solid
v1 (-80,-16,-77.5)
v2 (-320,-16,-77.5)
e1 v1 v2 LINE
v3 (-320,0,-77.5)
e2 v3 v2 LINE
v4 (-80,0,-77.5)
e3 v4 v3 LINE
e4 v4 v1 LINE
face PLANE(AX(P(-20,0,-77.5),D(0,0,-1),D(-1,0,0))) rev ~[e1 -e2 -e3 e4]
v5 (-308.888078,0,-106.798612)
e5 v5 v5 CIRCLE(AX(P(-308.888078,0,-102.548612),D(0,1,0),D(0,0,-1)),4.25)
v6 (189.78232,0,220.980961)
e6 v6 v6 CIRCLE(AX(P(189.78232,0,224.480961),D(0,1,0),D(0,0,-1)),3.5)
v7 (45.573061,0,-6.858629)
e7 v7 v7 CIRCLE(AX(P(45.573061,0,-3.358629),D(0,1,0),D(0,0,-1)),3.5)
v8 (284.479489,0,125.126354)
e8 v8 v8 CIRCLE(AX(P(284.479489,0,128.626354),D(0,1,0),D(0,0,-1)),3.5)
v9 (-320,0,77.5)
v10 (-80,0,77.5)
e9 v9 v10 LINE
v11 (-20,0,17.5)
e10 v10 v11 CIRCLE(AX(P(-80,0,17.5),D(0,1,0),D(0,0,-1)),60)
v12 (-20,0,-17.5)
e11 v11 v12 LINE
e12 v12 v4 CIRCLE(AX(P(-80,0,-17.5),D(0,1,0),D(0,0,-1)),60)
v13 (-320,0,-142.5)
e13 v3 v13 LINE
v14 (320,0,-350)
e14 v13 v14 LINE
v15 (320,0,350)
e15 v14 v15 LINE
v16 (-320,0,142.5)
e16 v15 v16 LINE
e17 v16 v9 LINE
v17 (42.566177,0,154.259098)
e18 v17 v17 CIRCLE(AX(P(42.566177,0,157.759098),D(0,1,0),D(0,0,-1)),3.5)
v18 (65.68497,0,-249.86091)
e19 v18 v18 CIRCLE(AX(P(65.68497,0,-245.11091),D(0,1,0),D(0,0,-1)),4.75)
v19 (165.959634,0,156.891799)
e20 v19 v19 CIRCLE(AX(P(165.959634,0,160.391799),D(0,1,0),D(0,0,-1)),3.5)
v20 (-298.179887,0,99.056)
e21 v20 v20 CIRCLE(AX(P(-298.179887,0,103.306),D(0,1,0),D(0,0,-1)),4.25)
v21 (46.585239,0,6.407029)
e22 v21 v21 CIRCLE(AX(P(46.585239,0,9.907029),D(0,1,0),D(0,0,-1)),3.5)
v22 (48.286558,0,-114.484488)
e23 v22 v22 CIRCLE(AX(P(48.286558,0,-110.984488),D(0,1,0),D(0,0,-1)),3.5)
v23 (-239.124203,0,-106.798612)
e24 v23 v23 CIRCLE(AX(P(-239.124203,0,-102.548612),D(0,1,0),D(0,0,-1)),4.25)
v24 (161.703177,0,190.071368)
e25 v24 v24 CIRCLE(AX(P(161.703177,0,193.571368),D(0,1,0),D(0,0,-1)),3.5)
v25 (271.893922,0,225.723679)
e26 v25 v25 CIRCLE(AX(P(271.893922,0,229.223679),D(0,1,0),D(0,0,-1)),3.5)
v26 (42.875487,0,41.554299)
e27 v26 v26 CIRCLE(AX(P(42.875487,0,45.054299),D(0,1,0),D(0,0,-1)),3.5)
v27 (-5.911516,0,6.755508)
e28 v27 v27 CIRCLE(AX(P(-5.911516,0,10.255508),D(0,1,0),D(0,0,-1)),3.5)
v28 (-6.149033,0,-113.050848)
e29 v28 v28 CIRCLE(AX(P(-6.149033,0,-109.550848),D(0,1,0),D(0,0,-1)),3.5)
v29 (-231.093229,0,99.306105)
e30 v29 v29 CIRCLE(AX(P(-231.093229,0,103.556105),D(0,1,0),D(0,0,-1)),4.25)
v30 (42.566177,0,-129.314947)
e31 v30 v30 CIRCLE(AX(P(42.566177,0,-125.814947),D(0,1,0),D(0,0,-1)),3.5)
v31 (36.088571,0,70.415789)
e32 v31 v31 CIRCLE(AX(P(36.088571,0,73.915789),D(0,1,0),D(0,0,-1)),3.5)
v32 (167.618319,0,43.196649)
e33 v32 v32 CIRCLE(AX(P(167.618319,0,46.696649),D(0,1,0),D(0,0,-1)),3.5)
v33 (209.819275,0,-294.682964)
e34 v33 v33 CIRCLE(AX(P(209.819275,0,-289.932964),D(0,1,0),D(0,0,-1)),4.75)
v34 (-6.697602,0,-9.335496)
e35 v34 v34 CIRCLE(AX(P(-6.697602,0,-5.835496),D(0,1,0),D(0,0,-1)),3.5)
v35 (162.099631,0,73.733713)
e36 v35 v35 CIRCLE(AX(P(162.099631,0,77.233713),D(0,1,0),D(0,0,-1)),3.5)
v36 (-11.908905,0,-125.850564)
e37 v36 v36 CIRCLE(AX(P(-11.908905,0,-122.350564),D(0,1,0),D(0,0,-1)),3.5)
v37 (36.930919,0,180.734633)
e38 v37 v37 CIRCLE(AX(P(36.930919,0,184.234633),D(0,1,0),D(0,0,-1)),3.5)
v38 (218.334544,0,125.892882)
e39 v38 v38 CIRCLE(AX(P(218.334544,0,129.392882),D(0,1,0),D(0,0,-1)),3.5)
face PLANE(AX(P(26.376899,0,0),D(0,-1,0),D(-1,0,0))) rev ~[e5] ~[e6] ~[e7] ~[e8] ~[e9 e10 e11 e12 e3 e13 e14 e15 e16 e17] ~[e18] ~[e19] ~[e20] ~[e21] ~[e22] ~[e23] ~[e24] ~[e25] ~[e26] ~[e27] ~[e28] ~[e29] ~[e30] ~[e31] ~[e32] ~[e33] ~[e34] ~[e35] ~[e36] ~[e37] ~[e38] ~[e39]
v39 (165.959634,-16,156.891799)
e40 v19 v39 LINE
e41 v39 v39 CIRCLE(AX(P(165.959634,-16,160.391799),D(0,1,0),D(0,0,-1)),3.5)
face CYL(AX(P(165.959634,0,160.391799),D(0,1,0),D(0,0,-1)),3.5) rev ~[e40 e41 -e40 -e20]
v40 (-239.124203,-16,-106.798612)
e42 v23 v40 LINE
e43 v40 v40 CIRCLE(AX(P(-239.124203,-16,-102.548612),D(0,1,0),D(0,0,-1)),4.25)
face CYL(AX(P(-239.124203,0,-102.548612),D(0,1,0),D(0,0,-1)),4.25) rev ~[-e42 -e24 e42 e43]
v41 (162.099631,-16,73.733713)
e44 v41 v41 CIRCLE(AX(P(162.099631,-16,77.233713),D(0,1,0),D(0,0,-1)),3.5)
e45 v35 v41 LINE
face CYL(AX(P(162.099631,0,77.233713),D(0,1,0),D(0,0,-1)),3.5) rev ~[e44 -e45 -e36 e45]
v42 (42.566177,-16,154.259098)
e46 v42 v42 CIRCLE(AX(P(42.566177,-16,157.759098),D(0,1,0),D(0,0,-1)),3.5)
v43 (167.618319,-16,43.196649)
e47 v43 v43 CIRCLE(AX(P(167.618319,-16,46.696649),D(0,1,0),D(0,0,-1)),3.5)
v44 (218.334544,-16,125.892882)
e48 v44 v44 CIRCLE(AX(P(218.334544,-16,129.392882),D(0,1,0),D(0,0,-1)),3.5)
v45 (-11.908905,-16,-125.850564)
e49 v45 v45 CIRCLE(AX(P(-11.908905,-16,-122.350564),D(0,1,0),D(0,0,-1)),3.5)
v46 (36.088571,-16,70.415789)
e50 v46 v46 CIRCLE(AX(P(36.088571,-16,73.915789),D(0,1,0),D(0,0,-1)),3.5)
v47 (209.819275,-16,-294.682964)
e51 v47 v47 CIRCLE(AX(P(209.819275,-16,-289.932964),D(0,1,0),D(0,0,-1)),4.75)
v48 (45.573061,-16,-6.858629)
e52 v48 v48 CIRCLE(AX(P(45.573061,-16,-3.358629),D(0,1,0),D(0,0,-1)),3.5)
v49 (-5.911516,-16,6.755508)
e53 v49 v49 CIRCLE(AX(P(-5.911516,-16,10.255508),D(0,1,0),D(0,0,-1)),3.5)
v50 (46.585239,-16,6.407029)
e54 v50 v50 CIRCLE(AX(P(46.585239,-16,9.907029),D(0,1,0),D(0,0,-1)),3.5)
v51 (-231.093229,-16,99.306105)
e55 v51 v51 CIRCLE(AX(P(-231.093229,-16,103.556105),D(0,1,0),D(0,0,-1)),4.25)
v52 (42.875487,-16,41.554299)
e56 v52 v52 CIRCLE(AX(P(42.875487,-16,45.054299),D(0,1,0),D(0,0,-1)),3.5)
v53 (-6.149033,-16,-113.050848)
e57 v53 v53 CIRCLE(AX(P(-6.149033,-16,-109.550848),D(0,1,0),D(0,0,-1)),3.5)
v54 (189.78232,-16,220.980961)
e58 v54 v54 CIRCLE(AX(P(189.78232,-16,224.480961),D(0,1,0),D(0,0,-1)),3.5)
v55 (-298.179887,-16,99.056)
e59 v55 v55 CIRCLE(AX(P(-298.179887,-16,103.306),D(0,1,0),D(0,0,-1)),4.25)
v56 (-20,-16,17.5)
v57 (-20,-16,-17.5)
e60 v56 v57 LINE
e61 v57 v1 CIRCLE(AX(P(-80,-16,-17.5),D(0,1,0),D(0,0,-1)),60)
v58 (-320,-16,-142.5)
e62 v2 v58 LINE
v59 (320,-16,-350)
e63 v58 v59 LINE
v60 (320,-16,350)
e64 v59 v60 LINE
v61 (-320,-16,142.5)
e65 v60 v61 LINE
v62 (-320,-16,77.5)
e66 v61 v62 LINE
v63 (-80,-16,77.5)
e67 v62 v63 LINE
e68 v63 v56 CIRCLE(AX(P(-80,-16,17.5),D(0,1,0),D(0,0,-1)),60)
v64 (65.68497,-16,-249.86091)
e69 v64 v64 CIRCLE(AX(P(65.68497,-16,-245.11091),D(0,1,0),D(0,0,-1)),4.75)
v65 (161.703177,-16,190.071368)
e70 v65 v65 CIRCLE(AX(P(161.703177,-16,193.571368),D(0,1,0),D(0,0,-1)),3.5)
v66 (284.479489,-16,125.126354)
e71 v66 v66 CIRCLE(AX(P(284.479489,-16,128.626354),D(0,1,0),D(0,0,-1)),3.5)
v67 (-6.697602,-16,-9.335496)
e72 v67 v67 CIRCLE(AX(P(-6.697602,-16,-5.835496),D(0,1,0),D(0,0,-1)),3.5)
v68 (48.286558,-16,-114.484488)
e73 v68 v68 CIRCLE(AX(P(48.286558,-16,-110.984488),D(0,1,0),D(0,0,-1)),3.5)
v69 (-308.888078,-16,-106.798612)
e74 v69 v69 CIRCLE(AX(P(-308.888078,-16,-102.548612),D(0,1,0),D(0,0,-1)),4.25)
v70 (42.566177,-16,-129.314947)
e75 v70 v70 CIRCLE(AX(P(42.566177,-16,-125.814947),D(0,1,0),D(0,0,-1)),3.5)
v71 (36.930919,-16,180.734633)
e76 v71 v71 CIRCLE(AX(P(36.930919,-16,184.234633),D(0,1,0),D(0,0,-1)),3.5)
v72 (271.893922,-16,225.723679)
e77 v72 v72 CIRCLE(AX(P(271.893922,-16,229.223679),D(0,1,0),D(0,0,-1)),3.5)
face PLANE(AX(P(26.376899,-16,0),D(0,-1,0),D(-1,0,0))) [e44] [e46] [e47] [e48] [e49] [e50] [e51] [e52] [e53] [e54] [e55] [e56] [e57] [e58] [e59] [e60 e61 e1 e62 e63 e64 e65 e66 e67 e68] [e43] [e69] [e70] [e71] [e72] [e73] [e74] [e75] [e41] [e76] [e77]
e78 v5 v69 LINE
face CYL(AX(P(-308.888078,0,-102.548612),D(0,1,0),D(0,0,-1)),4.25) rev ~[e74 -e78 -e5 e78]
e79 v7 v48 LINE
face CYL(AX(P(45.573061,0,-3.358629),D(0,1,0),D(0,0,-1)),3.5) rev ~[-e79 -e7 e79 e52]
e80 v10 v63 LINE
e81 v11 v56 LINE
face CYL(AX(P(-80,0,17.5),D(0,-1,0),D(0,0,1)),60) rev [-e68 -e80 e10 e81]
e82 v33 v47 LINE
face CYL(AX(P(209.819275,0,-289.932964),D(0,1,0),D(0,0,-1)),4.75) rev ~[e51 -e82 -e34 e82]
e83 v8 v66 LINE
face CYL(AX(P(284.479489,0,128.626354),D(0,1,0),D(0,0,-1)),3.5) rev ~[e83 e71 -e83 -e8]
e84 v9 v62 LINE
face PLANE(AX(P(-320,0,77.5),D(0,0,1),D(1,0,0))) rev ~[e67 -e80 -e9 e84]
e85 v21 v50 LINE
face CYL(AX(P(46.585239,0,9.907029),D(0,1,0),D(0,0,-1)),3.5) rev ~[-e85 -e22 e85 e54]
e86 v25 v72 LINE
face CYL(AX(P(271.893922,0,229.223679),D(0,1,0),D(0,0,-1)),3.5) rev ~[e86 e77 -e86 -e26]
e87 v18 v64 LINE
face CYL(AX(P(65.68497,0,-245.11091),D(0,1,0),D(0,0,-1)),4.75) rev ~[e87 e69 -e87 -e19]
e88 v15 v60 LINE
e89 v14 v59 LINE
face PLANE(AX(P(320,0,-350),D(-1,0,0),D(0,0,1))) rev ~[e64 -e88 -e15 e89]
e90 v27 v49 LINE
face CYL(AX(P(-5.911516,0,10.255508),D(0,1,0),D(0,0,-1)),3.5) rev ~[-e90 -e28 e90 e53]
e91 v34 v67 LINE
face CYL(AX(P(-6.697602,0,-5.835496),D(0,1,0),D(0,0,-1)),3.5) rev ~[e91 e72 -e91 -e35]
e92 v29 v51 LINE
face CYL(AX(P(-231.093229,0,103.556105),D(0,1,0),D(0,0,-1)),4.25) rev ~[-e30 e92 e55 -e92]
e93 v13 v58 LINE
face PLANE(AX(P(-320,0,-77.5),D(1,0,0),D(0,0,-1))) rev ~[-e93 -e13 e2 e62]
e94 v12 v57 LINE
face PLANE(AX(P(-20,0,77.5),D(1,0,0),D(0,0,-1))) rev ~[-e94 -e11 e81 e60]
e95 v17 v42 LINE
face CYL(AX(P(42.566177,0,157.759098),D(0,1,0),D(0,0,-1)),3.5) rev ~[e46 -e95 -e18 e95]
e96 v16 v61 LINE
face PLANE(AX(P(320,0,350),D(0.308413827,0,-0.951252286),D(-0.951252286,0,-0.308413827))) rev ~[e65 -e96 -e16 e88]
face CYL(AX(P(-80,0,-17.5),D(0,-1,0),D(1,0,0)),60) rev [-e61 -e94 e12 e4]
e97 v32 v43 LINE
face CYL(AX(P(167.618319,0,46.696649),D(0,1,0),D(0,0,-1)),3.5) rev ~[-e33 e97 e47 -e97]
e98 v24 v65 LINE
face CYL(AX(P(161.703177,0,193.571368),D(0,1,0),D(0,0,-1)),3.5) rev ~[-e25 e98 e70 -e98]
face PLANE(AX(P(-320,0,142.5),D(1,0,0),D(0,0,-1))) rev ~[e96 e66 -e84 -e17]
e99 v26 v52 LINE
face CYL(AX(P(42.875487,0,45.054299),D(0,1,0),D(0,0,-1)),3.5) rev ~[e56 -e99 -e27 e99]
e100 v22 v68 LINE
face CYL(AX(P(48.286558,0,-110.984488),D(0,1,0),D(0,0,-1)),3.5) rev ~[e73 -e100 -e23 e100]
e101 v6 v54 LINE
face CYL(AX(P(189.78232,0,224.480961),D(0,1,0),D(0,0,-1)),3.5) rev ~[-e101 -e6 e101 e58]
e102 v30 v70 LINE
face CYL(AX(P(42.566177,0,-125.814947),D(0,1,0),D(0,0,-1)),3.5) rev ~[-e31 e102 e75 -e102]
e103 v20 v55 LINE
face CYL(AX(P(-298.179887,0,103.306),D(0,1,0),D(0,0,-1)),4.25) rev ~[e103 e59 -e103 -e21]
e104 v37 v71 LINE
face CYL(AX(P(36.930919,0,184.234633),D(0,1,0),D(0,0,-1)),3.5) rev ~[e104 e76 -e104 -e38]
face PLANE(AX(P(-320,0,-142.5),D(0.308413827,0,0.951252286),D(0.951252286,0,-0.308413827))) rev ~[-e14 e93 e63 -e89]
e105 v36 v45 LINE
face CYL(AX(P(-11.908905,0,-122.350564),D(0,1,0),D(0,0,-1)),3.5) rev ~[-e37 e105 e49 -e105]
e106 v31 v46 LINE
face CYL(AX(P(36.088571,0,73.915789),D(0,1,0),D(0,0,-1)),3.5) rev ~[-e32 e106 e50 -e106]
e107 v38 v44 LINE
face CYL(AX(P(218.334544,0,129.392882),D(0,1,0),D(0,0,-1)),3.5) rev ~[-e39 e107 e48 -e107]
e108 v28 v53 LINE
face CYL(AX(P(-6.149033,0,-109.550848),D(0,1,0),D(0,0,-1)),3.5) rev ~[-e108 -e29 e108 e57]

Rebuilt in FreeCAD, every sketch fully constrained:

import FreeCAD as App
import Part
import Sketcher

V = App.Vector


def edges_at(feature, points):
    """Names of the edges that pass closest to the given points."""
    edges = feature.Shape.Edges
    near = lambda p: min(range(len(edges)), key=lambda i: edges[i].distToShape(Part.Vertex(*p))[0])
    return sorted({f"Edge{near(p) + 1}" for p in points})

doc = App.newDocument("Part")
body = doc.addObject("PartDesign::Body", "Body")

# Sketch on XZ plane
sketch1 = body.newObject("Sketcher::SketchObject", "Sketch")
sketch1.AttachmentSupport = (doc.getObject("XZ_Plane"), [""])
sketch1.MapMode = "FlatFace"
sketch1.addGeometry([
    Part.LineSegment(V(320, -350, 0), V(-320, -142, 0)),  # 0
    Part.LineSegment(V(-320, -142, 0), V(-320, -78, 0)),  # 1
    Part.LineSegment(V(-320, -78, 0), V(-20, -78, 0)),  # 2
    Part.LineSegment(V(-20, -78, 0), V(-20, 78, 0)),  # 3
    Part.LineSegment(V(-20, 78, 0), V(-320, 78, 0)),  # 4
    Part.LineSegment(V(-320, 78, 0), V(-320, 142, 0)),  # 5
    Part.LineSegment(V(-320, 142, 0), V(320, 350, 0)),  # 6
    Part.LineSegment(V(320, 350, 0), V(320, -350, 0)),  # 7
], False)
sketch1.addConstraint([
    Sketcher.Constraint("Coincident", 0, 2, 1, 1),
    Sketcher.Constraint("Coincident", 1, 2, 2, 1),
    Sketcher.Constraint("Coincident", 2, 2, 3, 1),
    Sketcher.Constraint("Coincident", 3, 2, 4, 1),
    Sketcher.Constraint("Coincident", 4, 2, 5, 1),
    Sketcher.Constraint("Coincident", 5, 2, 6, 1),
    Sketcher.Constraint("Coincident", 6, 2, 7, 1),
    Sketcher.Constraint("Coincident", 7, 2, 0, 1),
    Sketcher.Constraint("Vertical", 1),
    Sketcher.Constraint("Horizontal", 2),
    Sketcher.Constraint("Vertical", 3),
    Sketcher.Constraint("Horizontal", 4),
    Sketcher.Constraint("Vertical", 5),
    Sketcher.Constraint("Vertical", 7),
    Sketcher.Constraint("Symmetric", 1, 2, 4, 2, -1),
    Sketcher.Constraint("Equal", 1, 5),
    Sketcher.Constraint("Equal", 0, 6),
    Sketcher.Constraint("DistanceX", 2, 1, 2, 2, 300.0),
    Sketcher.Constraint("DistanceY", 1, 1, 1, 2, 65.0),
    Sketcher.Constraint("DistanceY", 3, 1, 3, 2, 155.0),
    Sketcher.Constraint("DistanceY", 7, 2, 7, 1, 700.0),
    Sketcher.Constraint("DistanceX", 0, 2, -1, 1, 320.0),
    Sketcher.Constraint("DistanceX", -1, 1, 6, 2, 320.0),
])
pad1 = body.newObject("PartDesign::Pad", "Pad")
pad1.Profile = sketch1
pad1.Length = 16
doc.recompute()

fillet = body.newObject("PartDesign::Fillet", "Fillet")
fillet.Base = (pad1, edges_at(pad1, [(-20, -8, 77.5), (-20, -8, -77.5)]))
fillet.Radius = 60

# Sketch on XZ plane
sketch2 = body.newObject("Sketcher::SketchObject", "Sketch001")
sketch2.AttachmentSupport = (doc.getObject("XZ_Plane"), [""])
sketch2.MapMode = "FlatFace"
sketch2.addGeometry([
    Part.Circle(V(45.6, -3.4, 0), V(0, 0, 1), 3.5),  # 0
    Part.Circle(V(-231.1, 103.6, 0), V(0, 0, 1), 4.2),  # 1
    Part.Circle(V(-298.2, 103.3, 0), V(0, 0, 1), 4.2),  # 2
    Part.Circle(V(42.6, 157.8, 0), V(0, 0, 1), 3.5),  # 3
    Part.Circle(V(36.9, 184.2, 0), V(0, 0, 1), 3.5),  # 4
    Part.Circle(V(271.9, 229.2, 0), V(0, 0, 1), 3.5),  # 5
    Part.Circle(V(189.8, 224.5, 0), V(0, 0, 1), 3.5),  # 6
    Part.Circle(V(161.7, 193.6, 0), V(0, 0, 1), 3.5),  # 7
    Part.Circle(V(166, 160.4, 0), V(0, 0, 1), 3.5),  # 8
    Part.Circle(V(218.3, 129.4, 0), V(0, 0, 1), 3.5),  # 9
    Part.Circle(V(284.5, 128.6, 0), V(0, 0, 1), 3.5),  # 10
    Part.Circle(V(167.6, 46.7, 0), V(0, 0, 1), 3.5),  # 11
    Part.Circle(V(162.1, 77.2, 0), V(0, 0, 1), 3.5),  # 12
    Part.Circle(V(36.1, 73.9, 0), V(0, 0, 1), 3.5),  # 13
    Part.Circle(V(42.9, 45.1, 0), V(0, 0, 1), 3.5),  # 14
    Part.Circle(V(46.6, 9.9, 0), V(0, 0, 1), 3.5),  # 15
    Part.Circle(V(-5.9, 10.3, 0), V(0, 0, 1), 3.5),  # 16
    Part.Circle(V(65.7, -245.1, 0), V(0, 0, 1), 4.8),  # 17
    Part.Circle(V(209.8, -289.9, 0), V(0, 0, 1), 4.8),  # 18
    Part.Circle(V(-239.1, -102.5, 0), V(0, 0, 1), 4.2),  # 19
    Part.Circle(V(-308.9, -102.5, 0), V(0, 0, 1), 4.2),  # 20
    Part.Circle(V(42.6, -125.8, 0), V(0, 0, 1), 3.5),  # 21
    Part.Circle(V(-11.9, -122.4, 0), V(0, 0, 1), 3.5),  # 22
    Part.Circle(V(48.3, -111, 0), V(0, 0, 1), 3.5),  # 23
    Part.Circle(V(-6.1, -109.6, 0), V(0, 0, 1), 3.5),  # 24
    Part.Circle(V(-6.7, -5.8, 0), V(0, 0, 1), 3.5),  # 25
], False)
sketch2.addConstraint([
    Sketcher.Constraint("Equal", 1, 2),
    Sketcher.Constraint("Equal", 0, 3),
    Sketcher.Constraint("Equal", 3, 4),
    Sketcher.Constraint("Equal", 4, 5),
    Sketcher.Constraint("Equal", 5, 6),
    Sketcher.Constraint("Equal", 6, 7),
    Sketcher.Constraint("Equal", 7, 8),
    Sketcher.Constraint("Equal", 8, 9),
    Sketcher.Constraint("Equal", 9, 10),
    Sketcher.Constraint("Equal", 10, 11),
    Sketcher.Constraint("Equal", 11, 12),
    Sketcher.Constraint("Equal", 12, 13),
    Sketcher.Constraint("Equal", 13, 14),
    Sketcher.Constraint("Equal", 14, 15),
    Sketcher.Constraint("Equal", 15, 16),
    Sketcher.Constraint("Equal", 17, 18),
    Sketcher.Constraint("Equal", 2, 19),
    Sketcher.Constraint("Equal", 19, 20),
    Sketcher.Constraint("Equal", 16, 21),
    Sketcher.Constraint("Equal", 21, 22),
    Sketcher.Constraint("Equal", 22, 23),
    Sketcher.Constraint("Equal", 23, 24),
    Sketcher.Constraint("Equal", 24, 25),
    Sketcher.Constraint("Horizontal", 19, 3, 20, 3),
    Sketcher.Constraint("Vertical", 3, 3, 21, 3),
    Sketcher.Constraint("Diameter", 0, 7.0),
    Sketcher.Constraint("Diameter", 1, 8.5),
    Sketcher.Constraint("Diameter", 17, 9.5),
    Sketcher.Constraint("DistanceY", -1, 1, 2, 3, 103.306),
    Sketcher.Constraint("DistanceX", 3, 3, 7, 3, 119.137001),
    Sketcher.Constraint("DistanceY", -1, 1, 3, 3, 157.759098),
    Sketcher.Constraint("DistanceY", -1, 1, 8, 3, 160.391799),
    Sketcher.Constraint("DistanceY", -1, 1, 14, 3, 45.054299),
    Sketcher.Constraint("DistanceX", 6, 3, 5, 3, 82.111601),
    Sketcher.Constraint("DistanceX", 4, 3, 6, 3, 152.851402),
    Sketcher.Constraint("DistanceY", 21, 3, 24, 3, 16.264099),
    Sketcher.Constraint("DistanceX", -1, 1, 0, 3, 45.573061),
    Sketcher.Constraint("DistanceY", 0, 3, -1, 1, 3.358629),
    Sketcher.Constraint("DistanceX", 1, 3, -1, 1, 231.093229),
    Sketcher.Constraint("DistanceX", -1, 1, 4, 3, 36.930919),
    Sketcher.Constraint("DistanceY", -1, 1, 5, 3, 229.223679),
    Sketcher.Constraint("DistanceY", -1, 1, 6, 3, 224.480961),
    Sketcher.Constraint("DistanceY", -1, 1, 9, 3, 129.392882),
    Sketcher.Constraint("DistanceX", -1, 1, 10, 3, 284.479489),
    Sketcher.Constraint("DistanceX", -1, 1, 11, 3, 167.618319),
    Sketcher.Constraint("DistanceY", -1, 1, 11, 3, 46.696649),
    Sketcher.Constraint("DistanceX", -1, 1, 12, 3, 162.099631),
    Sketcher.Constraint("DistanceX", -1, 1, 13, 3, 36.088571),
    Sketcher.Constraint("DistanceY", -1, 1, 13, 3, 73.915789),
    Sketcher.Constraint("DistanceX", -1, 1, 15, 3, 46.585239),
    Sketcher.Constraint("DistanceY", -1, 1, 15, 3, 9.907029),
    Sketcher.Constraint("DistanceX", -1, 1, 17, 3, 65.68497),
    Sketcher.Constraint("DistanceY", 17, 3, -1, 1, 245.11091),
    Sketcher.Constraint("DistanceX", 20, 3, -1, 1, 308.888078),
    Sketcher.Constraint("DistanceY", 24, 3, -1, 1, 109.550848),
    Sketcher.Constraint("DistanceX", 2, 3, 1, 3, 67.086658),
    Sketcher.Constraint("DistanceY", 0, 3, 4, 3, 187.593262),
    Sketcher.Constraint("DistanceY", 1, 3, 4, 3, 80.678528),
    Sketcher.Constraint("DistanceY", 7, 3, 5, 3, 35.652311),
    Sketcher.Constraint("DistanceX", 4, 3, 7, 3, 124.772259),
    Sketcher.Constraint("DistanceX", 8, 3, 5, 3, 105.934288),
    Sketcher.Constraint("DistanceX", 8, 3, 9, 3, 52.37491),
    Sketcher.Constraint("DistanceY", 12, 3, 9, 3, 52.159169),
    Sketcher.Constraint("DistanceY", 12, 3, 10, 3, 51.392641),
    Sketcher.Constraint("DistanceX", 3, 3, 14, 3, 0.30931),
    Sketcher.Constraint("DistanceY", 15, 3, 16, 3, 0.348479),
    Sketcher.Constraint("DistanceX", 16, 3, 18, 3, 215.73079),
    Sketcher.Constraint("DistanceY", 18, 3, 16, 3, 300.188472),
    Sketcher.Constraint("DistanceY", 19, 3, 16, 3, 112.80412),
    Sketcher.Constraint("DistanceX", 22, 3, 21, 3, 54.475082),
    Sketcher.Constraint("DistanceX", 22, 3, 16, 3, 5.99739),
    Sketcher.Constraint("DistanceY", 22, 3, 16, 3, 132.606072),
    Sketcher.Constraint("DistanceX", 21, 3, 23, 3, 5.720381),
    Sketcher.Constraint("DistanceY", 21, 3, 23, 3, 14.83046),
    Sketcher.Constraint("DistanceX", 22, 3, 24, 3, 5.759872),
    Sketcher.Constraint("DistanceX", 25, 3, 15, 3, 53.282842),
    Sketcher.Constraint("DistanceX", 19, 3, -1, 1, 239.124203),
    Sketcher.Constraint("DistanceY", 25, 3, -1, 1, 5.835496),
])
pocket1 = body.newObject("PartDesign::Pocket", "Pocket")
pocket1.Profile = sketch2
pocket1.Type = "ThroughAll"
pocket1.Reversed = True

doc.recompute()
